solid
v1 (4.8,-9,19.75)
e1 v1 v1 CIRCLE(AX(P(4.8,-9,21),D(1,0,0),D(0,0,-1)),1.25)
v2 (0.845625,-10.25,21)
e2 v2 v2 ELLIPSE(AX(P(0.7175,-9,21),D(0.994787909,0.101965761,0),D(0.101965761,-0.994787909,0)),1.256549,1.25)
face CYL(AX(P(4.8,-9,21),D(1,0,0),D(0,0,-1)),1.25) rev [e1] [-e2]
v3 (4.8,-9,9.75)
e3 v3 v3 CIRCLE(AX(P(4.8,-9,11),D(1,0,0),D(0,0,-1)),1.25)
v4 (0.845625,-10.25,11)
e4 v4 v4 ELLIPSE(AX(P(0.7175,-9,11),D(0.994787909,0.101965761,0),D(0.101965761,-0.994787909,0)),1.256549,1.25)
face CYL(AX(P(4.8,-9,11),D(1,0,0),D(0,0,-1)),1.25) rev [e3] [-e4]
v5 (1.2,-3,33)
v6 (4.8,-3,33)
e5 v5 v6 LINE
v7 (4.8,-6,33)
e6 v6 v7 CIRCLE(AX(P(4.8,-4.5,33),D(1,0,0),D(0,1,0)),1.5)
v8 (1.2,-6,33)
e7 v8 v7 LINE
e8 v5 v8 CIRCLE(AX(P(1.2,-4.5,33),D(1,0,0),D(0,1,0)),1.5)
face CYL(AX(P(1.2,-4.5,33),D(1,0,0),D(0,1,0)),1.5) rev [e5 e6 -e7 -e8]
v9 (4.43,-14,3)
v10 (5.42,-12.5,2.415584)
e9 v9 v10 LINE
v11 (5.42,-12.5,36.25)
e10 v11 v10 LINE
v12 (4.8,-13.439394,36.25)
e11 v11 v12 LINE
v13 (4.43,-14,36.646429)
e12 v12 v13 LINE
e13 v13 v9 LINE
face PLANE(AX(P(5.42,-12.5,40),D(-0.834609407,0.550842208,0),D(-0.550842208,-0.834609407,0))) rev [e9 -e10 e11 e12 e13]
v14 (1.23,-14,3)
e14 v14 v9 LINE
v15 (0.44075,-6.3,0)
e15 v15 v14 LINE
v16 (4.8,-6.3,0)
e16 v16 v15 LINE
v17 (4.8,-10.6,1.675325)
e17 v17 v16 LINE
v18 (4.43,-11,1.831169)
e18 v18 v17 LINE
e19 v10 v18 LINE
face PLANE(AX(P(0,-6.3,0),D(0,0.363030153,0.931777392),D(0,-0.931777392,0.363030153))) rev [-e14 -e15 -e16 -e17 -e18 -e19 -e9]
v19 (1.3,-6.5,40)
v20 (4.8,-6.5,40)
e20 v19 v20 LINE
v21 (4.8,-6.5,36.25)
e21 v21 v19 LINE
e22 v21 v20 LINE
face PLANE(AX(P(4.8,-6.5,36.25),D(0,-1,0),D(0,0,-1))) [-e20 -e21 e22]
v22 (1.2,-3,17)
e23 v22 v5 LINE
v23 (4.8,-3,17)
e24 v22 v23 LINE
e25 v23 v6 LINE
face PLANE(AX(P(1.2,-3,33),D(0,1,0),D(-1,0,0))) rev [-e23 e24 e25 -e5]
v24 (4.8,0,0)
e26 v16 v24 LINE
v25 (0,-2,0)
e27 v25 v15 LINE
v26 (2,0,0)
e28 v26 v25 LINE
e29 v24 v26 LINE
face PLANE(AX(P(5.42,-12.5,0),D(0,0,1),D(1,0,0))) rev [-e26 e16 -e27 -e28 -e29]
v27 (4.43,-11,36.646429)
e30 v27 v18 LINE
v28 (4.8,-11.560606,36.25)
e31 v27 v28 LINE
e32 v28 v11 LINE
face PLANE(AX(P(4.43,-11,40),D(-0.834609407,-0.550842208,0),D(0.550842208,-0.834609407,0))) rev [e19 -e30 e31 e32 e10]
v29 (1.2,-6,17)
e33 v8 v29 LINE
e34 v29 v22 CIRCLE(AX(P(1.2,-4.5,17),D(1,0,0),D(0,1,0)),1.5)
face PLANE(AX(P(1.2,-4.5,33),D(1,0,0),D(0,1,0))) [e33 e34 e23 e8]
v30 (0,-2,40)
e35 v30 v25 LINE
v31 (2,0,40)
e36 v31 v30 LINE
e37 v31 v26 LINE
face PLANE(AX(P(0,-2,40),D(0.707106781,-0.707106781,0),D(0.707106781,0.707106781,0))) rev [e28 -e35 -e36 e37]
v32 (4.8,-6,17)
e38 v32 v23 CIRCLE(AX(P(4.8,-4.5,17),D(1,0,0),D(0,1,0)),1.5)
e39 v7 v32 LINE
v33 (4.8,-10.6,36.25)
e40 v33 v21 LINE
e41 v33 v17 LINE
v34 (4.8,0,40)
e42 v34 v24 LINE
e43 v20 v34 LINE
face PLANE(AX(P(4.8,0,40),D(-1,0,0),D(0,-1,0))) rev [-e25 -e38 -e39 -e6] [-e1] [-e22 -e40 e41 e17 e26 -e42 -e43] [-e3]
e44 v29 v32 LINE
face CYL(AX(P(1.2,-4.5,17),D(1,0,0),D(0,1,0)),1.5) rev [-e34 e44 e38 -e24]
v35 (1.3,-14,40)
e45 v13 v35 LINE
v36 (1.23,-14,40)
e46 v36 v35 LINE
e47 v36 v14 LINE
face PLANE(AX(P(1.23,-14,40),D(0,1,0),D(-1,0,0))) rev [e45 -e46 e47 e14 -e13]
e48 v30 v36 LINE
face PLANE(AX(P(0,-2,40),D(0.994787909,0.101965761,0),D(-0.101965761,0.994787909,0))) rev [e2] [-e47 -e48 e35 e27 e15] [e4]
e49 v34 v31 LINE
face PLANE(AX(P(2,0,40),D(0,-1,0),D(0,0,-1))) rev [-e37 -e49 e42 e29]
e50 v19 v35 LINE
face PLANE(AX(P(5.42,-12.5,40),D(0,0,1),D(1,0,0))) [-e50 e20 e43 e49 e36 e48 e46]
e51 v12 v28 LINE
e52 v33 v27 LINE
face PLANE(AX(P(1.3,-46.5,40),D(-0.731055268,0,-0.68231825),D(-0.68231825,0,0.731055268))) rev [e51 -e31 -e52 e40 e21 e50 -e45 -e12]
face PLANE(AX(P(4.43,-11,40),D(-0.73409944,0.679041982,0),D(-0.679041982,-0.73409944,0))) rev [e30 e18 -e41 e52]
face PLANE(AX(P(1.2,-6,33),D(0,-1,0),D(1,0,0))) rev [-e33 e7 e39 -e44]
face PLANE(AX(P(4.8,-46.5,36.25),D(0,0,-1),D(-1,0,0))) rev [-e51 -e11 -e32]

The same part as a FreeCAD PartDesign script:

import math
import FreeCAD as App
import Part
import Sketcher
Q = App.Units.Quantity


def add_polygon(sketch, points):
    """Adds a closed chain of lines whose ends are joined by coincident constraints."""
    first, n = sketch.GeometryCount, len(points)
    for a, b in zip(points, points[1:] + points[:1]):
        sketch.addGeometry(Part.LineSegment(App.Vector(*a, 0), App.Vector(*b, 0)), False)
    for i in range(n):
        sketch.addConstraint(Sketcher.Constraint("Coincident", first + i, 2, first + (i + 1) % n, 1))

doc = App.newDocument("Part")
body = doc.addObject("PartDesign::Body", "Body")

sketch1 = body.newObject("Sketcher::SketchObject", "Sketch")
sketch1.AttachmentSupport = (doc.getObject("XY_Plane"), [""])
sketch1.MapMode = "FlatFace"
add_polygon(sketch1, [(2, 0), (0, -2), (1.2, -14), (4.4, -14), (5.4, -12.5), (4.4, -11), (4.8, -10.6), (4.8, 0)])
sketch1.addConstraint([
    Sketcher.Constraint("Horizontal", 2),
    Sketcher.Constraint("Vertical", 6),
    Sketcher.Constraint("Horizontal", 7),
    Sketcher.Constraint("PointOnObject", 0, 2, -2),
    Sketcher.Constraint("PointOnObject", 6, 2, -1),
    Sketcher.Constraint("Vertical", 2, 2, 4, 2),
    Sketcher.Constraint("Equal", 3, 4),
    Sketcher.Constraint("Angle", 0, Q("-135 deg")),
    Sketcher.Constraint("DistanceX", 2, 1, 2, 2, 3.2),
    Sketcher.Constraint("DistanceX", 7, 2, 7, 1, 2.8),
    Sketcher.Constraint("DistanceY", 6, 1, 6, 2, 10.6),
    Sketcher.Constraint("DistanceY", 0, 2, -1, 1, 2.0),
    Sketcher.Constraint("DistanceY", 1, 2, -1, 1, 14.0),
    Sketcher.Constraint("DistanceY", 4, 2, -1, 1, 11.0),
    Sketcher.Constraint("DistanceX", -1, 1, 1, 2, 1.23),
    Sketcher.Constraint("DistanceX", -1, 1, 3, 2, 5.42),
])
pad1 = body.newObject("PartDesign::Pad", "Pad")
pad1.Profile = sketch1
pad1.Length = 40

sketch2 = body.newObject("Sketcher::SketchObject", "Sketch001")
sketch2.AttachmentSupport = (doc.getObject("YZ_Plane"), [""])
sketch2.MapMode = "FlatFace"
sketch2.AttachmentOffset = App.Placement(App.Vector(0, 0, 4.8), App.Rotation())
add_polygon(sketch2, [(-14, 0), (-6.3, 0), (-14, 3)])
sketch2.addConstraint([
    Sketcher.Constraint("Horizontal", 0),
    Sketcher.Constraint("Vertical", 2),
    Sketcher.Constraint("PointOnObject", 0, 2, -1),
    Sketcher.Constraint("DistanceY", 2, 2, 2, 1, 3.0),
    Sketcher.Constraint("DistanceX", 0, 1, 0, 2, 7.7),
    Sketcher.Constraint("DistanceX", 1, 2, -1, 1, 14.0),
])
pocket1 = body.newObject("PartDesign::Pocket", "Pocket")
pocket1.Profile = sketch2
pocket1.Type = "ThroughAll"
pocket1.Midplane = True

sketch3 = body.newObject("Sketcher::SketchObject", "Sketch002")
sketch3.AttachmentSupport = (doc.getObject("XZ_Plane"), [""])
sketch3.MapMode = "FlatFace"
sketch3.AttachmentOffset = App.Placement(App.Vector(0, 0, 6.5), App.Rotation())
add_polygon(sketch3, [(1.3, 40), (6.8, 40), (6.8, 36.2), (4.8, 36.2)])
sketch3.addConstraint([
    Sketcher.Constraint("Horizontal", 0),
    Sketcher.Constraint("Vertical", 1),
    Sketcher.Constraint("Horizontal", 2),
    Sketcher.Constraint("DistanceX", 2, 2, 2, 1, 2.0),
    Sketcher.Constraint("DistanceX", 0, 1, 0, 2, 5.5),
    Sketcher.Constraint("DistanceY", -1, 1, 0, 2, 40.0),
    Sketcher.Constraint("DistanceY", 1, 2, 1, 1, 3.75),
    Sketcher.Constraint("DistanceX", -1, 1, 0, 2, 6.8),
])
pocket2 = body.newObject("PartDesign::Pocket", "Pocket001")
pocket2.Profile = sketch3
pocket2.Length = 40
pocket2.Reversed = True

sketch4 = body.newObject("Sketcher::SketchObject", "Sketch003")
sketch4.AttachmentSupport = (doc.getObject("YZ_Plane"), [""])
sketch4.MapMode = "FlatFace"
sketch4.AttachmentOffset = App.Placement(App.Vector(0, 0, 4.8), App.Rotation())
sketch4.addGeometry([
    Part.Circle(App.Vector(-9, 11, 0), App.Vector(0, 0, 1), 1.2),
    Part.Circle(App.Vector(-9, 21, 0), App.Vector(0, 0, 1), 1.2),
], False)
sketch4.addConstraint([
    Sketcher.Constraint("Equal", 0, 1),
    Sketcher.Constraint("Vertical", 0, 3, 1, 3),
    Sketcher.Constraint("Diameter", 0, 2.5),
    Sketcher.Constraint("DistanceX", 0, 3, -1, 1, 9.0),
    Sketcher.Constraint("DistanceY", -1, 1, 0, 3, 11.0),
    Sketcher.Constraint("DistanceY", -1, 1, 1, 3, 21.0),
])
doc.recompute()
hole = body.newObject("PartDesign::Hole", "Hole")
hole.Profile = sketch4
hole.ThreadType = "None"
hole.Diameter = 2.5
hole.DepthType = "Dimension"
hole.Depth = 8.5
hole.DrillPoint = "Angled"
hole.DrillPointAngle = 118

sketch5 = body.newObject("Sketcher::SketchObject", "Sketch004")
sketch5.AttachmentSupport = (doc.getObject("YZ_Plane"), [""])
sketch5.MapMode = "FlatFace"
sketch5.AttachmentOffset = App.Placement(App.Vector(0, 0, 4.8), App.Rotation())
sketch5.addGeometry([
    Part.LineSegment(App.Vector(-3, 17, 0), App.Vector(-3, 33, 0)),
    Part.ArcOfCircle(Part.Circle(App.Vector(-4.5, 33, 0), App.Vector(0, 0, 1), 1.5), math.radians(0), math.radians(180)),
    Part.LineSegment(App.Vector(-6, 33, 0), App.Vector(-6, 17, 0)),
    Part.ArcOfCircle(Part.Circle(App.Vector(-4.5, 17, 0), App.Vector(0, 0, 1), 1.5), math.radians(180), math.radians(360)),
], False)
sketch5.addConstraint([
    Sketcher.Constraint("Tangent", 0, 2, 1, 1),
    Sketcher.Constraint("Tangent", 1, 2, 2, 1),
    Sketcher.Constraint("Tangent", 2, 2, 3, 1),
    Sketcher.Constraint("Tangent", 3, 2, 0, 1),
    Sketcher.Constraint("Vertical", 0),
    Sketcher.Constraint("Vertical", 2),
    Sketcher.Constraint("Radius", 1, 1.5),
    Sketcher.Constraint("DistanceY", 0, 1, 0, 2, 16.0),
    Sketcher.Constraint("DistanceY", -1, 1, 1, 3, 33.0),
    Sketcher.Constraint("DistanceX", 0, 2, -1, 1, 3.0),
])
pocket3 = body.newObject("PartDesign::Pocket", "Pocket002")
pocket3.Profile = sketch5
pocket3.Length = 3.6

doc.recompute()
